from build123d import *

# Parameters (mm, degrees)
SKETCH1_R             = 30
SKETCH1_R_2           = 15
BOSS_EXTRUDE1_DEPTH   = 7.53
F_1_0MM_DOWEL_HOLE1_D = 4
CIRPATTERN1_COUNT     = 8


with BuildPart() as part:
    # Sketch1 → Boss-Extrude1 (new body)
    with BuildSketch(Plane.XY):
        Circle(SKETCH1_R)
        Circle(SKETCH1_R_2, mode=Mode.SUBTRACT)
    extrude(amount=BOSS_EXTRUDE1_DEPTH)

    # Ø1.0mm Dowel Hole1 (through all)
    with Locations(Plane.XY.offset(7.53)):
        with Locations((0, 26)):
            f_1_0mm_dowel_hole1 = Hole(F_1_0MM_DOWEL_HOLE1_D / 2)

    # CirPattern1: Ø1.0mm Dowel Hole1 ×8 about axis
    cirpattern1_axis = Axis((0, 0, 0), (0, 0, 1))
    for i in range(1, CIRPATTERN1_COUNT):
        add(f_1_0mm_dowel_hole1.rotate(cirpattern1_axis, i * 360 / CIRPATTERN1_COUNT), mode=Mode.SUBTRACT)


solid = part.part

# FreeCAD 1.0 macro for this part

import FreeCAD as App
import Part
import Sketcher
from FreeCAD import Vector

doc = App.newDocument("Part")
body = doc.addObject("PartDesign::Body", "Body")

sketch1 = body.newObject("Sketcher::SketchObject", "Sketch")
sketch1.AttachmentSupport = (doc.getObject("XY_Plane"), [""])
sketch1.MapMode = "FlatFace"
sketch1.addGeometry(Part.Circle(Vector(0, 0, 0), Vector(0, 0, 1), 30), False)
sketch1.addGeometry(Part.Circle(Vector(0, 0, 0), Vector(0, 0, 1), 15), False)
sketch1.addConstraint(Sketcher.Constraint("Coincident", 0, 3, -1, 1))
sketch1.addConstraint(Sketcher.Constraint("Coincident", 1, 3, -1, 1))
sketch1.addConstraint(Sketcher.Constraint("Diameter", 0, 60.0))
sketch1.addConstraint(Sketcher.Constraint("Diameter", 1, 30.0))
pad1 = body.newObject("PartDesign::Pad", "Pad")
pad1.Profile = sketch1
pad1.Length = 7.53

sketch2 = body.newObject("Sketcher::SketchObject", "Sketch001")
sketch2.AttachmentSupport = (doc.getObject("XY_Plane"), [""])
sketch2.MapMode = "FlatFace"
sketch2.AttachmentOffset = App.Placement(Vector(0, 0, 7.53), App.Rotation())
sketch2.addGeometry(Part.Circle(Vector(0, 26, 0), Vector(0, 0, 1), 2), False)
sketch2.addConstraint(Sketcher.Constraint("PointOnObject", 0, 3, -2))
sketch2.addConstraint(Sketcher.Constraint("Diameter", 0, 4.0))
sketch2.addConstraint(Sketcher.Constraint("DistanceY", -1, 1, 0, 3, 26.0))
doc.recompute()
hole = body.newObject("PartDesign::Hole", "Hole")
hole.Profile = sketch2
hole.ThreadType = "None"
hole.Diameter = 4
hole.DepthType = "ThroughAll"
doc.recompute()

polarpattern = body.newObject("PartDesign::PolarPattern", "PolarPattern")
polarpattern.Originals = [hole]
polarpattern.Axis = (doc.getObject("Z_Axis"), [""])
polarpattern.Angle = 360
polarpattern.Occurrences = 8
body.Tip = polarpattern

doc.recompute()
